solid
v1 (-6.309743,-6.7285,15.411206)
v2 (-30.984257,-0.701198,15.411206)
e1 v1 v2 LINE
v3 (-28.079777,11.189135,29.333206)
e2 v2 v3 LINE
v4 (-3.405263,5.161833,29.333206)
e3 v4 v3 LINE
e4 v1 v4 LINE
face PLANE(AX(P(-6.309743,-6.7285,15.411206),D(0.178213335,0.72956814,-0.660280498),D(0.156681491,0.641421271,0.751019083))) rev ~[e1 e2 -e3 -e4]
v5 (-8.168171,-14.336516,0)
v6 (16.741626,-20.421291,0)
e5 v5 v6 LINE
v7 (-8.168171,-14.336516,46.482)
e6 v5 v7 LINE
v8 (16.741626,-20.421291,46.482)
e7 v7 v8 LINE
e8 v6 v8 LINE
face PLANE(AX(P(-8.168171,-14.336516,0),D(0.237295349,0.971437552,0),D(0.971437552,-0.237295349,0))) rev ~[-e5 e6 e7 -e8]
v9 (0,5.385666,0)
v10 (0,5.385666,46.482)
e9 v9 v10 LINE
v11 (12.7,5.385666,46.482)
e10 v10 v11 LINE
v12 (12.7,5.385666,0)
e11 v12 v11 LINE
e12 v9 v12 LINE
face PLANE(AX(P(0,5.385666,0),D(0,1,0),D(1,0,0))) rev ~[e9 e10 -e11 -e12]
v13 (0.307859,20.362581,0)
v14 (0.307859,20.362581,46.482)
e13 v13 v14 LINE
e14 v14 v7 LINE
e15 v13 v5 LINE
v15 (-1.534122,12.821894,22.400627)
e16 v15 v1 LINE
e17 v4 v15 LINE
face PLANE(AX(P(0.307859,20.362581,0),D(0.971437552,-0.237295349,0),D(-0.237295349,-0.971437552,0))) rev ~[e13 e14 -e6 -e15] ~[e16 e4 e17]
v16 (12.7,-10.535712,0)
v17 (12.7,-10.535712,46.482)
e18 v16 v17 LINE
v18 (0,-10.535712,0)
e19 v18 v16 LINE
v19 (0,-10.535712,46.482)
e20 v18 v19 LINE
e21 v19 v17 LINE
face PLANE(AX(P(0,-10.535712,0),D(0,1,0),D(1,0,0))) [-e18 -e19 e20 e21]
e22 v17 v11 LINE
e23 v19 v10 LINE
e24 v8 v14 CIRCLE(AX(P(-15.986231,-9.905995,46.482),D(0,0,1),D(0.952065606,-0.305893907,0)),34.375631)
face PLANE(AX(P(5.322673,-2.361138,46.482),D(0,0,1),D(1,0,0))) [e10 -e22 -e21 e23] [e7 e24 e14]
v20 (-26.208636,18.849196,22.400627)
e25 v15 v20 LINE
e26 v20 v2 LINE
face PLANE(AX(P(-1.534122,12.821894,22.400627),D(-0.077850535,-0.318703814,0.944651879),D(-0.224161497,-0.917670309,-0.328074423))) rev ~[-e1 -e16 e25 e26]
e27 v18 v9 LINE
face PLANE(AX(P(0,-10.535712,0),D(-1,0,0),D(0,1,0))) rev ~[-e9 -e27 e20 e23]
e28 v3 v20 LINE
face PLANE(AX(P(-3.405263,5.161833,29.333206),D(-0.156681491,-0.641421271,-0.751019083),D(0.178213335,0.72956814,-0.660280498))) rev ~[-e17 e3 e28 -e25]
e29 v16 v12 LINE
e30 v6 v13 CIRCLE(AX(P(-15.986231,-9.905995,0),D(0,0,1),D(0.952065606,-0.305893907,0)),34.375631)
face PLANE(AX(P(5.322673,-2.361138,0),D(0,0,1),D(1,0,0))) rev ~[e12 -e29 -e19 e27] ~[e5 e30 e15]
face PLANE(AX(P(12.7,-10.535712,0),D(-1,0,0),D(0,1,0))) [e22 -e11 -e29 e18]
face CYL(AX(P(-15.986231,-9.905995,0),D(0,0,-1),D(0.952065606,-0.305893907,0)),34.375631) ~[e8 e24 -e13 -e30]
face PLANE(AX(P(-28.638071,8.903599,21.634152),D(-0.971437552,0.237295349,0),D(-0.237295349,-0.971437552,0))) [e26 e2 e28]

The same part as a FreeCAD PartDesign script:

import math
import FreeCAD as App
import Part
import Sketcher

V = App.Vector
Q = App.Units.Quantity


def add_polygon(sketch, points):
    """Adds a closed chain of lines whose ends are joined by coincident constraints."""
    first, n = sketch.GeometryCount, len(points)
    for a, b in zip(points, points[1:] + points[:1]):
        sketch.addGeometry(Part.LineSegment(App.Vector(*a, 0), App.Vector(*b, 0)), False)
    for i in range(n):
        sketch.addConstraint(Sketcher.Constraint("Coincident", first + i, 2, first + (i + 1) % n, 1))

doc = App.newDocument("Part")
body = doc.addObject("PartDesign::Body", "Body")

# Sketch on XY plane
sketch1 = body.newObject("Sketcher::SketchObject", "Sketch")
sketch1.AttachmentSupport = (doc.getObject("XY_Plane"), [""])
sketch1.MapMode = "FlatFace"
sketch1.addGeometry(Part.ArcOfCircle(Part.Circle(V(-15.986231, -9.905995, 0), V(0, 0, 1), 34.375631), math.radians(-17.811952), math.radians(61.705663)), False)  # 0
sketch1.addGeometry(Part.LineSegment(V(0.307859, 20.362581, 0), V(-8.168171, -14.336516, 0)), False)  # 1
sketch1.addGeometry(Part.LineSegment(V(-8.168171, -14.336516, 0), V(16.741626, -20.421291, 0)), False)  # 2
add_polygon(sketch1, [(12.7, -10.535712), (0, -10.535712), (0, 5.385666), (12.7, 5.385666)])  # lines 3-6
sketch1.addConstraint(Sketcher.Constraint("Coincident", 0, 2, 1, 1))
sketch1.addConstraint(Sketcher.Constraint("Coincident", 1, 2, 2, 1))
sketch1.addConstraint(Sketcher.Constraint("Coincident", 2, 2, 0, 1))
sketch1.addConstraint(Sketcher.Constraint("Horizontal", 3))
sketch1.addConstraint(Sketcher.Constraint("Vertical", 4))
sketch1.addConstraint(Sketcher.Constraint("Horizontal", 5))
sketch1.addConstraint(Sketcher.Constraint("Vertical", 6))
sketch1.addConstraint(Sketcher.Constraint("PointOnObject", 3, 2, -2))
sketch1.addConstraint(Sketcher.Constraint("Perpendicular", 1, 2))
sketch1.addConstraint(Sketcher.Constraint("DistanceX", 3, 2, 3, 1, Q("0.5 in")))
sketch1.addConstraint(Sketcher.Constraint("DistanceY", 0, 3, -1, 1, Q("0.3899998 in")))
sketch1.addConstraint(Sketcher.Constraint("Radius", 0, 34.375631))
sketch1.addConstraint(Sketcher.Constraint("Distance", 2, 25.642201))
sketch1.addConstraint(Sketcher.Constraint("DistanceY", 4, 1, 4, 2, 15.921378))
sketch1.addConstraint(Sketcher.Constraint("Distance", 1, 35.719328))
sketch1.addConstraint(Sketcher.Constraint("DistanceX", 0, 3, -1, 1, 15.986231))
sketch1.addConstraint(Sketcher.Constraint("DistanceX", -1, 1, 0, 2, 0.307859))
sketch1.addConstraint(Sketcher.Constraint("DistanceY", 2, 2, 3, 2, 9.885579))
pad1 = body.newObject("PartDesign::Pad", "Pad")
pad1.Profile = sketch1
pad1.Length = Q("1.83 in")

# Sketch on an angled plane
sketch2 = body.newObject("Sketcher::SketchObject", "Sketch001")
sketch2.Placement = App.Placement(V(-4.40341, 1.075631, 0), App.Rotation(V(-0.237295349, -0.971437552, 0), V(0, 0, 1), V(-0.971437552, 0.237295349, 0), "ZXY"))
add_polygon(sketch2, [(8.03359, 15.411206), (-4.206345, 29.333206), (-12.091629, 22.400627)])  # lines 0-2
sketch2.addConstraint(Sketcher.Constraint("Perpendicular", 0, 1))
sketch2.addConstraint(Sketcher.Constraint("DistanceY", 2, 2, 0, 2, 13.922))
sketch2.addConstraint(Sketcher.Constraint("Distance", 0, 18.537478))
sketch2.addConstraint(Sketcher.Constraint("DistanceX", 1, 2, -1, 1, 12.091629))
sketch2.addConstraint(Sketcher.Constraint("DistanceX", -1, 1, 2, 2, 8.03359))
sketch2.addConstraint(Sketcher.Constraint("DistanceY", -1, 1, 0, 2, 29.333206))
pad2 = body.newObject("PartDesign::Pad", "Pad001")
pad2.Profile = sketch2
pad2.Length = Q("1 in")

doc.recompute()
